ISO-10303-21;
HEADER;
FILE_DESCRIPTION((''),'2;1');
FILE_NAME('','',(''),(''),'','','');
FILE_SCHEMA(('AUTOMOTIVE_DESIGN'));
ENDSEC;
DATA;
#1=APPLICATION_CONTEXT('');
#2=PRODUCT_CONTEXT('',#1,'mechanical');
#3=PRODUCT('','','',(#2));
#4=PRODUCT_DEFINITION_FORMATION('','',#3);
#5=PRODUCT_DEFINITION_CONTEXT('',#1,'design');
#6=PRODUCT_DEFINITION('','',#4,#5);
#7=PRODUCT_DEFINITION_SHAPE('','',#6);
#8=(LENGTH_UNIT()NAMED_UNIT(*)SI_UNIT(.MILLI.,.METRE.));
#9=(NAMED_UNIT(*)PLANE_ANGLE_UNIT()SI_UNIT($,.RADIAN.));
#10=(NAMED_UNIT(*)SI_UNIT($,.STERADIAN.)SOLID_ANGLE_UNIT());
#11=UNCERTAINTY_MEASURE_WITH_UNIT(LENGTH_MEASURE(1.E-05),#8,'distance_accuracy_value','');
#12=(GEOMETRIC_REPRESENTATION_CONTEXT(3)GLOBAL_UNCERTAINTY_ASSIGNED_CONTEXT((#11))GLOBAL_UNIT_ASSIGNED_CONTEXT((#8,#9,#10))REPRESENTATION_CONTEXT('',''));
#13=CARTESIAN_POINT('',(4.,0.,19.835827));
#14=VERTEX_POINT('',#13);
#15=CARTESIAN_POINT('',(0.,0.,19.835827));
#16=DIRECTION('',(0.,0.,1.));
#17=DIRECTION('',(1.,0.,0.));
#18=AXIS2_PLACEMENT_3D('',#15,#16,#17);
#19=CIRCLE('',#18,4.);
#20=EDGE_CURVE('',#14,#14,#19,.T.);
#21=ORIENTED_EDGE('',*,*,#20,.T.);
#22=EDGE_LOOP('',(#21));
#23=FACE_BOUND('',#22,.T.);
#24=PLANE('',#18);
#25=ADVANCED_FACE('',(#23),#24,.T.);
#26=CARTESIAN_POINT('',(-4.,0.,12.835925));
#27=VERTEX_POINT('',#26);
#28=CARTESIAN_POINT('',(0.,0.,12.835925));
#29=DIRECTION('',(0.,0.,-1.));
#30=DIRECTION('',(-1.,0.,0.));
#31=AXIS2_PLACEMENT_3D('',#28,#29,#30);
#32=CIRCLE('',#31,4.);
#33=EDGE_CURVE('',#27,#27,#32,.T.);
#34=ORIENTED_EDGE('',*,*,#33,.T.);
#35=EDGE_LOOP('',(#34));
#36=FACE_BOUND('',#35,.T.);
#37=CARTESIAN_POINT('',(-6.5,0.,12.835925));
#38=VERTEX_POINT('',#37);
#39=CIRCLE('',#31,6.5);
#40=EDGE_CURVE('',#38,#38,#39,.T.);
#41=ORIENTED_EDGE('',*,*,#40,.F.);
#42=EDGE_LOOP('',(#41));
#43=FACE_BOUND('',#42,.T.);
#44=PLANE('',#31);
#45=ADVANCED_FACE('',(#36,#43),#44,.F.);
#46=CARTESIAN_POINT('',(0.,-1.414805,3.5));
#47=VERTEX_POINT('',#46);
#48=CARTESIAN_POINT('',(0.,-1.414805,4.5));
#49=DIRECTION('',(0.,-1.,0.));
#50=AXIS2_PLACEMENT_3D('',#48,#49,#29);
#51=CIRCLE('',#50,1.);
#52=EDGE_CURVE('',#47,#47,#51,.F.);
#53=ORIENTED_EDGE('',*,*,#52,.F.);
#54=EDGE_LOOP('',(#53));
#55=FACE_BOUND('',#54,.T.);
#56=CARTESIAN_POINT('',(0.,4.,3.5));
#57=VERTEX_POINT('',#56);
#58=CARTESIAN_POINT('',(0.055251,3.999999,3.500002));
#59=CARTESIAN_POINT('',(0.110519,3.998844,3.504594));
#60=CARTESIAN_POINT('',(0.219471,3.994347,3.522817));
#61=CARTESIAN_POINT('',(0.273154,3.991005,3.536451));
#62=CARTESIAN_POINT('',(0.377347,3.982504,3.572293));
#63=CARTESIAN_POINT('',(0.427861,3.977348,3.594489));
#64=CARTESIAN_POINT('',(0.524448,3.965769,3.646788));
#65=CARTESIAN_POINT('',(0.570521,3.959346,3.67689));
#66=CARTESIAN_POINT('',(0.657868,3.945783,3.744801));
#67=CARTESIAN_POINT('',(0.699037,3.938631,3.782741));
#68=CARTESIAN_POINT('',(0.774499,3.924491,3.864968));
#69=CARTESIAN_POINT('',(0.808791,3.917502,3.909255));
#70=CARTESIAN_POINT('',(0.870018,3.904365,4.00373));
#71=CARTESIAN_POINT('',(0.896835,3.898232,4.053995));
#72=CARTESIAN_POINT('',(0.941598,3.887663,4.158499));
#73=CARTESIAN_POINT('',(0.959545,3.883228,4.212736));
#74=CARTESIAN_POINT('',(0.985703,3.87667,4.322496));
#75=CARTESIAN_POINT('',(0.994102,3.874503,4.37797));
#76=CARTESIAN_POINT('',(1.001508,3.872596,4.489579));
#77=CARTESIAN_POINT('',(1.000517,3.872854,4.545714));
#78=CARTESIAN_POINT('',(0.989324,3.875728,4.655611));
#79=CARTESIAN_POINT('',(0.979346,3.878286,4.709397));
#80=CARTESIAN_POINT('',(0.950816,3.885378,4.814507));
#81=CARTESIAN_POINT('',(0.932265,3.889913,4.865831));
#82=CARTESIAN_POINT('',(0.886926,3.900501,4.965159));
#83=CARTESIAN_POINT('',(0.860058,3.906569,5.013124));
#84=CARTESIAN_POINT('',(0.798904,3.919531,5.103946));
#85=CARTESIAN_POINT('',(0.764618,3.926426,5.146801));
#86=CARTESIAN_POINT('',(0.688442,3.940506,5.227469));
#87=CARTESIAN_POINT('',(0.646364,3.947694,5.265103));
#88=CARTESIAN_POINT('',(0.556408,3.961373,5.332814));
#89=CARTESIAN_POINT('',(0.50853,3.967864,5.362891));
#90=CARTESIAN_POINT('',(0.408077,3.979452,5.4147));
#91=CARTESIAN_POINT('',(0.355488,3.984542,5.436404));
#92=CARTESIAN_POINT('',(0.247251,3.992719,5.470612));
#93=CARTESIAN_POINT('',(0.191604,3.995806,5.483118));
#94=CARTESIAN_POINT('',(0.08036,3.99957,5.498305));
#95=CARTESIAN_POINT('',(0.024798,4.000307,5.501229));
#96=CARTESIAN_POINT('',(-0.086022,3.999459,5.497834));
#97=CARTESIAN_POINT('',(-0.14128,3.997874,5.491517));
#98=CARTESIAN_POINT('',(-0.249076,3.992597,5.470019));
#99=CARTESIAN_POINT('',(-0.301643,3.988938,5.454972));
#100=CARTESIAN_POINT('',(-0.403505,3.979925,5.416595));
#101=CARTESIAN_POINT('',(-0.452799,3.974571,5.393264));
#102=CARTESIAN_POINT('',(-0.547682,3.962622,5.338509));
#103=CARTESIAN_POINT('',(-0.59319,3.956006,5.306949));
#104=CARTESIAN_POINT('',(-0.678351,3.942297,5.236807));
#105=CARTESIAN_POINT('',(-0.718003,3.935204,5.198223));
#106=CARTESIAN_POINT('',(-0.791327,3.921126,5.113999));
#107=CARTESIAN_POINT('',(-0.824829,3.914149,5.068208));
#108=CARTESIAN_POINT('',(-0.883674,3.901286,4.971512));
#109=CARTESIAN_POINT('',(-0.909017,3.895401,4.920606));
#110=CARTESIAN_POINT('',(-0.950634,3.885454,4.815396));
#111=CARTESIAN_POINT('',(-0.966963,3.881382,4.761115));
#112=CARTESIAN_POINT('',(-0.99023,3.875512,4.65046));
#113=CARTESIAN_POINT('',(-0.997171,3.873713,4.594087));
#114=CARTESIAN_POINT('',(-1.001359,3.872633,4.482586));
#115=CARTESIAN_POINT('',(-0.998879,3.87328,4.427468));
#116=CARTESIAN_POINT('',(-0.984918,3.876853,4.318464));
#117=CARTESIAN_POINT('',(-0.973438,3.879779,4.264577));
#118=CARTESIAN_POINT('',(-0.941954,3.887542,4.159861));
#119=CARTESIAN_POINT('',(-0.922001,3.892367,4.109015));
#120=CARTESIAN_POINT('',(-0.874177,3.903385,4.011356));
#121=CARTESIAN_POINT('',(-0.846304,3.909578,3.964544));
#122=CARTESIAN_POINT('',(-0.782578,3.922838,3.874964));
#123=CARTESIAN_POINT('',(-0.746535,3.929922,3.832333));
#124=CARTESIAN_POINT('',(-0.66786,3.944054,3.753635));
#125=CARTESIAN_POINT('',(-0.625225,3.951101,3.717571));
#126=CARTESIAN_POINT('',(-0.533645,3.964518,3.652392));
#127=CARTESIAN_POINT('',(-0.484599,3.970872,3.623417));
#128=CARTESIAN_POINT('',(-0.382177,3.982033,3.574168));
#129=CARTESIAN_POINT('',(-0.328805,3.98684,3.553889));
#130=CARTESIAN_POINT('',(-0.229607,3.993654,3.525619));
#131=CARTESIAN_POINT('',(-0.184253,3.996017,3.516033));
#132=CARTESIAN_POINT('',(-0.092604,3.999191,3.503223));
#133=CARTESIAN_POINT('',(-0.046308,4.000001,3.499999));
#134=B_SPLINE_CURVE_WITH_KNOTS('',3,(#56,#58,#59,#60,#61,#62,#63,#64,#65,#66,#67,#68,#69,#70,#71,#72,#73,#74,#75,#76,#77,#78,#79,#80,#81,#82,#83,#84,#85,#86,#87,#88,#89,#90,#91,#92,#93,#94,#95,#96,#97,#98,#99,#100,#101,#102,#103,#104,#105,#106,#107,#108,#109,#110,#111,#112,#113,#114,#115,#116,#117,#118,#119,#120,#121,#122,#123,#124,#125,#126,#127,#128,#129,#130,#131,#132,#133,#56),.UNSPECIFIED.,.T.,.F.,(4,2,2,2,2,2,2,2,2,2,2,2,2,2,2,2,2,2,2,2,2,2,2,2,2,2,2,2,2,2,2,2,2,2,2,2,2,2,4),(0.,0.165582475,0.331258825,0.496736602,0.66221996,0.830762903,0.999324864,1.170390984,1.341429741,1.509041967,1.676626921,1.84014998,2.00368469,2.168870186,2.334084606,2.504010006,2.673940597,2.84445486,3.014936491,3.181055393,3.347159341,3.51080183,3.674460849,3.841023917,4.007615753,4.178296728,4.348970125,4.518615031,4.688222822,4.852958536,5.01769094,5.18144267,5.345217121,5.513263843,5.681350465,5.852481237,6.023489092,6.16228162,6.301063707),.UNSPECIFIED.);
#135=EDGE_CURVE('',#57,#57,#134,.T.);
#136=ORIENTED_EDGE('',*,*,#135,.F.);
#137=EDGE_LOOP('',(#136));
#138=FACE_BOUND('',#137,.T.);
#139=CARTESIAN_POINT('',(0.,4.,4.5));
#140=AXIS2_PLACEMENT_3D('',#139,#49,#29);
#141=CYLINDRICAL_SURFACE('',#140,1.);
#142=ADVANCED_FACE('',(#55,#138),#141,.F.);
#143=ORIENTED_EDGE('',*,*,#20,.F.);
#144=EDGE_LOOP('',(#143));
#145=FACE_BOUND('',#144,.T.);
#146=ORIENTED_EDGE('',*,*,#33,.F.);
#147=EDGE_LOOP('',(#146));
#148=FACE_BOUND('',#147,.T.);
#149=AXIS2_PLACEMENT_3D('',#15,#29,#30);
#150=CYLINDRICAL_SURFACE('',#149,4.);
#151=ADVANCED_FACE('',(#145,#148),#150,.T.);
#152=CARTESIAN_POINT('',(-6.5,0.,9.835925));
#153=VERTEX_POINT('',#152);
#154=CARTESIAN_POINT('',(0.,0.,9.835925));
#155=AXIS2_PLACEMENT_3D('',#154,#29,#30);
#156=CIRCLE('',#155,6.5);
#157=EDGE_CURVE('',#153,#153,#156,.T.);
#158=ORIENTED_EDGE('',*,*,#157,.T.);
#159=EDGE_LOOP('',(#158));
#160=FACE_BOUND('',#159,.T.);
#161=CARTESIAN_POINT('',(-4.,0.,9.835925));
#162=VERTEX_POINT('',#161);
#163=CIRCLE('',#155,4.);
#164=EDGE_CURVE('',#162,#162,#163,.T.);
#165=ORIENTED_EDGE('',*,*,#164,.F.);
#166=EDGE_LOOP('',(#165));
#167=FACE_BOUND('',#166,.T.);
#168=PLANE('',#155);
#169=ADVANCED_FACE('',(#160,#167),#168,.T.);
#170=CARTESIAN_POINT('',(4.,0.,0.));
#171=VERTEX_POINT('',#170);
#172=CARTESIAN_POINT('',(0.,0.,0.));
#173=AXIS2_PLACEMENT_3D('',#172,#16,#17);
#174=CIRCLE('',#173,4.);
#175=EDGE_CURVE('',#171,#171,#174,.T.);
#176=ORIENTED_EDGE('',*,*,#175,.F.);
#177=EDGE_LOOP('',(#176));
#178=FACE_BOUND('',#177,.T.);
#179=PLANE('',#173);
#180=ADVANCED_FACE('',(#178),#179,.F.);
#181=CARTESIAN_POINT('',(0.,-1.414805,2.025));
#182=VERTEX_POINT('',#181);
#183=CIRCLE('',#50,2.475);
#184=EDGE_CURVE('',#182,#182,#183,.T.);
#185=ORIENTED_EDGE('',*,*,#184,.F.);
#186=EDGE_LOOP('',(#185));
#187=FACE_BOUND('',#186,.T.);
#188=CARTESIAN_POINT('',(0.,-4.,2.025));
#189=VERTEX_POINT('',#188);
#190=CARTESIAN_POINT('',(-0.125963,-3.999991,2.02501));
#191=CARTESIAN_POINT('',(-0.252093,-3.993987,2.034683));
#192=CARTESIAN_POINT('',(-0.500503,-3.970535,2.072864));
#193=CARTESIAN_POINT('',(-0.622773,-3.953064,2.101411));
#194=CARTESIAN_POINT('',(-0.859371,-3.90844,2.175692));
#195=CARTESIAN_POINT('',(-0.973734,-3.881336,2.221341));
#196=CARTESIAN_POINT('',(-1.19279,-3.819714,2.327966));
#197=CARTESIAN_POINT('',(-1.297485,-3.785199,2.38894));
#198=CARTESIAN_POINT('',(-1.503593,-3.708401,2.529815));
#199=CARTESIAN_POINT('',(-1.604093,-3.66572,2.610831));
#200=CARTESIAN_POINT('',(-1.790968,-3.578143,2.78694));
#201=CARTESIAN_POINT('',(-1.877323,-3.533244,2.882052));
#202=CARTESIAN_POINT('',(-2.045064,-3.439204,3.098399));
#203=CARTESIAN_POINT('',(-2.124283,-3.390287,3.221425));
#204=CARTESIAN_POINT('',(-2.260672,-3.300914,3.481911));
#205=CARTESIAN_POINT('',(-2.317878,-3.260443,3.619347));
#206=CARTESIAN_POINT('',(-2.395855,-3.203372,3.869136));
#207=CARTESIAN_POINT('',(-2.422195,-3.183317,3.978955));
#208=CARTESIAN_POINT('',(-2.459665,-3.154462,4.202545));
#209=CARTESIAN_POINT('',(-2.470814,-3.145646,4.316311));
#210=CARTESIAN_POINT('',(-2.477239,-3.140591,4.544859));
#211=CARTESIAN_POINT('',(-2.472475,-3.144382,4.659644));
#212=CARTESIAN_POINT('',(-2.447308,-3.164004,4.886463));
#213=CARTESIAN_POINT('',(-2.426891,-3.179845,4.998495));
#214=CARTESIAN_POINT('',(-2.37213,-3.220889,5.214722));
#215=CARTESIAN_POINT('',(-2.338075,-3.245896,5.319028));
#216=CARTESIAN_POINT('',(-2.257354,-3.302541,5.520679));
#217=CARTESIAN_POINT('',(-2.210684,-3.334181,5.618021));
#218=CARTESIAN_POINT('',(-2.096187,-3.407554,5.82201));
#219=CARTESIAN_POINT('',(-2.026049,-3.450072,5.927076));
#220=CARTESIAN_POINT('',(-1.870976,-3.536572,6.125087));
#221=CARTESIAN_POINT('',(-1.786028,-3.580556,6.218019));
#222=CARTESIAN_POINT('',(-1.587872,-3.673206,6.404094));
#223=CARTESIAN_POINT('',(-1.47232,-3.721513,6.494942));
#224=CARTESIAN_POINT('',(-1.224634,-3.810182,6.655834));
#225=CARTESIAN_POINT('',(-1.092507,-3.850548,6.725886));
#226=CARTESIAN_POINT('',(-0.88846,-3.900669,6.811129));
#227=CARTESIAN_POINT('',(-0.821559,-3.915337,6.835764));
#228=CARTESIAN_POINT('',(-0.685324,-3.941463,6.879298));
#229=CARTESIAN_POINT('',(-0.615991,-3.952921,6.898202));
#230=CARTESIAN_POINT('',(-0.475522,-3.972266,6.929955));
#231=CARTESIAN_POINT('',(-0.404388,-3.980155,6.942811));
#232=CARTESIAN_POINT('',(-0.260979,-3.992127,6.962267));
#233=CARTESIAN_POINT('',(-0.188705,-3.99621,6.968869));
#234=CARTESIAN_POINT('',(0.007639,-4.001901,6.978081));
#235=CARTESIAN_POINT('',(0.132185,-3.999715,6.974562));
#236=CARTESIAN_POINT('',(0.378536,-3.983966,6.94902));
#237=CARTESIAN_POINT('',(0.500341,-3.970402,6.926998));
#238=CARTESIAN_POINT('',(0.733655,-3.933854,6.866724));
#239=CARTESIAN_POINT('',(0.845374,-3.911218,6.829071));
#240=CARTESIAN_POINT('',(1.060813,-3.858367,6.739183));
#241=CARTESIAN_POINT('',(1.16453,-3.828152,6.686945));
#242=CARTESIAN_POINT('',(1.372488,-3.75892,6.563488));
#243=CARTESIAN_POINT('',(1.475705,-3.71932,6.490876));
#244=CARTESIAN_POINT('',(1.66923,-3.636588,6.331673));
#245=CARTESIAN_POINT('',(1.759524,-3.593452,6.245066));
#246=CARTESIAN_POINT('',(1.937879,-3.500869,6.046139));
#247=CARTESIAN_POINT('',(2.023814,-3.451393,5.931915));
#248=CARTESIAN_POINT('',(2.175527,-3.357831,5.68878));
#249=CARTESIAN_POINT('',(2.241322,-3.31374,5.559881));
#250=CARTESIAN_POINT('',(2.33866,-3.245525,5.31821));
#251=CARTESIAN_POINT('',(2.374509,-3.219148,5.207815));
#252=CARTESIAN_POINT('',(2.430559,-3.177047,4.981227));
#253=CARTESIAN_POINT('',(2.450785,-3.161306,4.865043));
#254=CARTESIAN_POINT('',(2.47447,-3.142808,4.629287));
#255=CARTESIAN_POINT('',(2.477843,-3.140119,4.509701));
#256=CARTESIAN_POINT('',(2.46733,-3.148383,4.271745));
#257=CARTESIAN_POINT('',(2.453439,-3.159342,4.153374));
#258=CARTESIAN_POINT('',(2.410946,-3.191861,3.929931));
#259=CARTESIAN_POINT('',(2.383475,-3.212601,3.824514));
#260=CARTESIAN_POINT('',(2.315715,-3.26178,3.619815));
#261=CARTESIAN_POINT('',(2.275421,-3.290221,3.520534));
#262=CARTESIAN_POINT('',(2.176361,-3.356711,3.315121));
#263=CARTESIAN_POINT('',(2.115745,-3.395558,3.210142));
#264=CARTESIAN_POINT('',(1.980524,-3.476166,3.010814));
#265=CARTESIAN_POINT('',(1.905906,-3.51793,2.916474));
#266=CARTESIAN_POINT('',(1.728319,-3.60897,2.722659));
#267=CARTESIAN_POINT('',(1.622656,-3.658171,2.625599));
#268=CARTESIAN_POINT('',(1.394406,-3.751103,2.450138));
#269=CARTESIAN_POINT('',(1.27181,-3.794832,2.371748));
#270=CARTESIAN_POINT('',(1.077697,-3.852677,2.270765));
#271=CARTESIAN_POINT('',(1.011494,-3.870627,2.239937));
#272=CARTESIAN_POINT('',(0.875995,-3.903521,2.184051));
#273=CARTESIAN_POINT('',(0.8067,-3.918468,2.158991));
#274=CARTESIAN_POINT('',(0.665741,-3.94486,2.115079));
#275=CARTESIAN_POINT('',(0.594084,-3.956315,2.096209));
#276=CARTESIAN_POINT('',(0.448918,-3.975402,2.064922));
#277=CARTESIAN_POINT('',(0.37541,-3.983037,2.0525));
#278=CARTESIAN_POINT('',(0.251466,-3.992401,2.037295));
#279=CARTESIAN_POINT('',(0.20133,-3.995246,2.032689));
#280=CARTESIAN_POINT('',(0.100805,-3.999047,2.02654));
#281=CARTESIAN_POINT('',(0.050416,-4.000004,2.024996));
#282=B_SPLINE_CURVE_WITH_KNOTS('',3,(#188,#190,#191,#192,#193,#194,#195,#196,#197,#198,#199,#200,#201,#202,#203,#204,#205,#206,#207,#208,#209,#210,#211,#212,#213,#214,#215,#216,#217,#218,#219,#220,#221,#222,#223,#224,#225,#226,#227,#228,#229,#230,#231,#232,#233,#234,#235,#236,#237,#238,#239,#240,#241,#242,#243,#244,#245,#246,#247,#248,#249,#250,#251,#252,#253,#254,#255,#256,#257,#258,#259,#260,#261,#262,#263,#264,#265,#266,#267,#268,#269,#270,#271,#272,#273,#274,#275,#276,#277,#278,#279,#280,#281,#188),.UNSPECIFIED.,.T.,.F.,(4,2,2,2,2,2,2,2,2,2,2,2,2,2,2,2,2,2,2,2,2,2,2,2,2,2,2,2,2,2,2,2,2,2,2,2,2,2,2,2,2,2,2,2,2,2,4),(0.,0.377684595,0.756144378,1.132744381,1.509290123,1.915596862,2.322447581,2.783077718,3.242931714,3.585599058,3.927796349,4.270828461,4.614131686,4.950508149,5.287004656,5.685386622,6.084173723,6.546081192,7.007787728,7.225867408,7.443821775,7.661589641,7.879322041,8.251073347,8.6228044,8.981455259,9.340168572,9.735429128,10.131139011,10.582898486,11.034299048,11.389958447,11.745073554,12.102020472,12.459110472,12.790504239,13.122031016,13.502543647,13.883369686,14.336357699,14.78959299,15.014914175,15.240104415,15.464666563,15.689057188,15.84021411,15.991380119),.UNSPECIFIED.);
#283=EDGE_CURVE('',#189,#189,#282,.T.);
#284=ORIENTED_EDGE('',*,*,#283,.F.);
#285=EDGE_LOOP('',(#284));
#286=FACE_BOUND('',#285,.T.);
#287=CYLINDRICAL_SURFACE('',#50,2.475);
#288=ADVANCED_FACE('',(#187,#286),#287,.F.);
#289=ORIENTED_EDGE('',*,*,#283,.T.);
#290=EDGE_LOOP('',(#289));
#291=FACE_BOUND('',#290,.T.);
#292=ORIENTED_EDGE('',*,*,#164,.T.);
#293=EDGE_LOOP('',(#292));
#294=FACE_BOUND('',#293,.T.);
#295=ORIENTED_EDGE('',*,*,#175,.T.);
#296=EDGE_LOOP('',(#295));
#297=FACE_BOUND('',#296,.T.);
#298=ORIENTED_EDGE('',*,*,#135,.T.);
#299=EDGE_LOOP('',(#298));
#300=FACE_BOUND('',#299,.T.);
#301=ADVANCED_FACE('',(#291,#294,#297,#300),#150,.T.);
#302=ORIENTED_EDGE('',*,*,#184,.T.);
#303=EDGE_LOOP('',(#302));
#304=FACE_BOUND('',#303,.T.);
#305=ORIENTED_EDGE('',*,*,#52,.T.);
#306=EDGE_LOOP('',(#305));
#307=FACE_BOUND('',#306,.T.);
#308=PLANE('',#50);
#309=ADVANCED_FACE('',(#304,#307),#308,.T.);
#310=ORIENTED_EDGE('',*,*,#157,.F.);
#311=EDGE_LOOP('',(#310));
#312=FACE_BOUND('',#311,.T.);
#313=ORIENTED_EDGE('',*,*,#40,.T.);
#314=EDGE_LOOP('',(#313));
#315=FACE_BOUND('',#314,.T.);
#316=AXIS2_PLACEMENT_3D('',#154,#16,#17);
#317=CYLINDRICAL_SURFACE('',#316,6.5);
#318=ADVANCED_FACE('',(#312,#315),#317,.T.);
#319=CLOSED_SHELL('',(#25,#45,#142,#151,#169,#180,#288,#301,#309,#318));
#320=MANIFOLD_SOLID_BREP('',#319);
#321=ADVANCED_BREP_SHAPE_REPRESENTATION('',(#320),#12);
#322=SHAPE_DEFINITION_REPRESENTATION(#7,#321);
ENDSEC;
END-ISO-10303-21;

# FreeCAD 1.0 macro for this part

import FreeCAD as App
import Part
import Sketcher
from FreeCAD import Vector

doc = App.newDocument("Part")
params = doc.addObject("Spreadsheet::Sheet", "Params")
for row, (alias, value) in enumerate([
    ("sketch1_diameter", "8 mm"),
    ("pad1_length", "19.835827 mm"),
    ("sketch2_diameter", "2 mm"),
    ("sketch3_diameter", "4.95 mm"),
    ("pocket2_length", "2.585195 mm"),
    ("sketch4_diameter", "13 mm"),
    ("sketch4_diameter2", "8 mm"),
    ("pad2_length", "3 mm"),
], start=1):
    params.set(f"A{row}", alias)
    params.set(f"B{row}", "=" + value)
    params.setAlias(f"B{row}", alias)

body = doc.addObject("PartDesign::Body", "Body")

# Sketch on XY plane
sketch1 = body.newObject("Sketcher::SketchObject", "Sketch")
sketch1.AttachmentSupport = (doc.getObject("XY_Plane"), [""])
sketch1.MapMode = "FlatFace"
sketch1.addGeometry(Part.Circle(Vector(0, 0, 0), Vector(0, 0, 1), 4), False)
sketch1.addConstraint(Sketcher.Constraint("Coincident", 0, 3, -1, 1))
sketch1.addConstraint(Sketcher.Constraint("Diameter", 0, 8.0))
sketch1.setExpression("Constraints[1]", "Params.sketch1_diameter")
pad1 = body.newObject("PartDesign::Pad", "Pad")
pad1.Profile = sketch1
pad1.setExpression("Length", "Params.pad1_length")

# Sketch on XZ plane
sketch2 = body.newObject("Sketcher::SketchObject", "Sketch001")
sketch2.AttachmentSupport = (doc.getObject("XZ_Plane"), [""])
sketch2.MapMode = "FlatFace"
sketch2.AttachmentOffset = App.Placement(Vector(0, 0, 4), App.Rotation())
sketch2.addGeometry(Part.Circle(Vector(0, 4.5, 0), Vector(0, 0, 1), 1), False)
sketch2.addConstraint(Sketcher.Constraint("PointOnObject", 0, 3, -2))
sketch2.addConstraint(Sketcher.Constraint("Diameter", 0, 2.0))
sketch2.addConstraint(Sketcher.Constraint("DistanceY", -1, 1, 0, 3, 4.5))
sketch2.setExpression("Constraints[1]", "Params.sketch2_diameter")
pocket1 = body.newObject("PartDesign::Pocket", "Pocket")
pocket1.Profile = sketch2
pocket1.Type = "ThroughAll"

# Sketch on XZ plane
sketch3 = body.newObject("Sketcher::SketchObject", "Sketch002")
sketch3.AttachmentSupport = (doc.getObject("XZ_Plane"), [""])
sketch3.MapMode = "FlatFace"
sketch3.AttachmentOffset = App.Placement(Vector(0, 0, 4), App.Rotation())
sketch3.addGeometry(Part.Circle(Vector(0, 4.5, 0), Vector(0, 0, 1), 2.5), False)
sketch3.addConstraint(Sketcher.Constraint("PointOnObject", 0, 3, -2))
sketch3.addConstraint(Sketcher.Constraint("Diameter", 0, 4.95))
sketch3.addConstraint(Sketcher.Constraint("DistanceY", -1, 1, 0, 3, 4.5))
sketch3.setExpression("Constraints[1]", "Params.sketch3_diameter")
pocket2 = body.newObject("PartDesign::Pocket", "Pocket001")
pocket2.Profile = sketch3
pocket2.setExpression("Length", "Params.pocket2_length")

# Sketch on XY plane
sketch4 = body.newObject("Sketcher::SketchObject", "Sketch003")
sketch4.AttachmentSupport = (doc.getObject("XY_Plane"), [""])
sketch4.MapMode = "FlatFace"
sketch4.AttachmentOffset = App.Placement(Vector(0, 0, 9.835925), App.Rotation())
sketch4.addGeometry(Part.Circle(Vector(0, 0, 0), Vector(0, 0, 1), 6.5), False)
sketch4.addGeometry(Part.Circle(Vector(0, 0, 0), Vector(0, 0, 1), 4), False)
sketch4.addConstraint(Sketcher.Constraint("Coincident", 0, 3, -1, 1))
sketch4.addConstraint(Sketcher.Constraint("Coincident", 1, 3, -1, 1))
sketch4.addConstraint(Sketcher.Constraint("Diameter", 0, 13.0))
sketch4.addConstraint(Sketcher.Constraint("Diameter", 1, 8.0))
sketch4.setExpression("Constraints[2]", "Params.sketch4_diameter")
sketch4.setExpression("Constraints[3]", "Params.sketch4_diameter2")
pad2 = body.newObject("PartDesign::Pad", "Pad001")
pad2.Profile = sketch4
pad2.setExpression("Length", "Params.pad2_length")

doc.recompute()
